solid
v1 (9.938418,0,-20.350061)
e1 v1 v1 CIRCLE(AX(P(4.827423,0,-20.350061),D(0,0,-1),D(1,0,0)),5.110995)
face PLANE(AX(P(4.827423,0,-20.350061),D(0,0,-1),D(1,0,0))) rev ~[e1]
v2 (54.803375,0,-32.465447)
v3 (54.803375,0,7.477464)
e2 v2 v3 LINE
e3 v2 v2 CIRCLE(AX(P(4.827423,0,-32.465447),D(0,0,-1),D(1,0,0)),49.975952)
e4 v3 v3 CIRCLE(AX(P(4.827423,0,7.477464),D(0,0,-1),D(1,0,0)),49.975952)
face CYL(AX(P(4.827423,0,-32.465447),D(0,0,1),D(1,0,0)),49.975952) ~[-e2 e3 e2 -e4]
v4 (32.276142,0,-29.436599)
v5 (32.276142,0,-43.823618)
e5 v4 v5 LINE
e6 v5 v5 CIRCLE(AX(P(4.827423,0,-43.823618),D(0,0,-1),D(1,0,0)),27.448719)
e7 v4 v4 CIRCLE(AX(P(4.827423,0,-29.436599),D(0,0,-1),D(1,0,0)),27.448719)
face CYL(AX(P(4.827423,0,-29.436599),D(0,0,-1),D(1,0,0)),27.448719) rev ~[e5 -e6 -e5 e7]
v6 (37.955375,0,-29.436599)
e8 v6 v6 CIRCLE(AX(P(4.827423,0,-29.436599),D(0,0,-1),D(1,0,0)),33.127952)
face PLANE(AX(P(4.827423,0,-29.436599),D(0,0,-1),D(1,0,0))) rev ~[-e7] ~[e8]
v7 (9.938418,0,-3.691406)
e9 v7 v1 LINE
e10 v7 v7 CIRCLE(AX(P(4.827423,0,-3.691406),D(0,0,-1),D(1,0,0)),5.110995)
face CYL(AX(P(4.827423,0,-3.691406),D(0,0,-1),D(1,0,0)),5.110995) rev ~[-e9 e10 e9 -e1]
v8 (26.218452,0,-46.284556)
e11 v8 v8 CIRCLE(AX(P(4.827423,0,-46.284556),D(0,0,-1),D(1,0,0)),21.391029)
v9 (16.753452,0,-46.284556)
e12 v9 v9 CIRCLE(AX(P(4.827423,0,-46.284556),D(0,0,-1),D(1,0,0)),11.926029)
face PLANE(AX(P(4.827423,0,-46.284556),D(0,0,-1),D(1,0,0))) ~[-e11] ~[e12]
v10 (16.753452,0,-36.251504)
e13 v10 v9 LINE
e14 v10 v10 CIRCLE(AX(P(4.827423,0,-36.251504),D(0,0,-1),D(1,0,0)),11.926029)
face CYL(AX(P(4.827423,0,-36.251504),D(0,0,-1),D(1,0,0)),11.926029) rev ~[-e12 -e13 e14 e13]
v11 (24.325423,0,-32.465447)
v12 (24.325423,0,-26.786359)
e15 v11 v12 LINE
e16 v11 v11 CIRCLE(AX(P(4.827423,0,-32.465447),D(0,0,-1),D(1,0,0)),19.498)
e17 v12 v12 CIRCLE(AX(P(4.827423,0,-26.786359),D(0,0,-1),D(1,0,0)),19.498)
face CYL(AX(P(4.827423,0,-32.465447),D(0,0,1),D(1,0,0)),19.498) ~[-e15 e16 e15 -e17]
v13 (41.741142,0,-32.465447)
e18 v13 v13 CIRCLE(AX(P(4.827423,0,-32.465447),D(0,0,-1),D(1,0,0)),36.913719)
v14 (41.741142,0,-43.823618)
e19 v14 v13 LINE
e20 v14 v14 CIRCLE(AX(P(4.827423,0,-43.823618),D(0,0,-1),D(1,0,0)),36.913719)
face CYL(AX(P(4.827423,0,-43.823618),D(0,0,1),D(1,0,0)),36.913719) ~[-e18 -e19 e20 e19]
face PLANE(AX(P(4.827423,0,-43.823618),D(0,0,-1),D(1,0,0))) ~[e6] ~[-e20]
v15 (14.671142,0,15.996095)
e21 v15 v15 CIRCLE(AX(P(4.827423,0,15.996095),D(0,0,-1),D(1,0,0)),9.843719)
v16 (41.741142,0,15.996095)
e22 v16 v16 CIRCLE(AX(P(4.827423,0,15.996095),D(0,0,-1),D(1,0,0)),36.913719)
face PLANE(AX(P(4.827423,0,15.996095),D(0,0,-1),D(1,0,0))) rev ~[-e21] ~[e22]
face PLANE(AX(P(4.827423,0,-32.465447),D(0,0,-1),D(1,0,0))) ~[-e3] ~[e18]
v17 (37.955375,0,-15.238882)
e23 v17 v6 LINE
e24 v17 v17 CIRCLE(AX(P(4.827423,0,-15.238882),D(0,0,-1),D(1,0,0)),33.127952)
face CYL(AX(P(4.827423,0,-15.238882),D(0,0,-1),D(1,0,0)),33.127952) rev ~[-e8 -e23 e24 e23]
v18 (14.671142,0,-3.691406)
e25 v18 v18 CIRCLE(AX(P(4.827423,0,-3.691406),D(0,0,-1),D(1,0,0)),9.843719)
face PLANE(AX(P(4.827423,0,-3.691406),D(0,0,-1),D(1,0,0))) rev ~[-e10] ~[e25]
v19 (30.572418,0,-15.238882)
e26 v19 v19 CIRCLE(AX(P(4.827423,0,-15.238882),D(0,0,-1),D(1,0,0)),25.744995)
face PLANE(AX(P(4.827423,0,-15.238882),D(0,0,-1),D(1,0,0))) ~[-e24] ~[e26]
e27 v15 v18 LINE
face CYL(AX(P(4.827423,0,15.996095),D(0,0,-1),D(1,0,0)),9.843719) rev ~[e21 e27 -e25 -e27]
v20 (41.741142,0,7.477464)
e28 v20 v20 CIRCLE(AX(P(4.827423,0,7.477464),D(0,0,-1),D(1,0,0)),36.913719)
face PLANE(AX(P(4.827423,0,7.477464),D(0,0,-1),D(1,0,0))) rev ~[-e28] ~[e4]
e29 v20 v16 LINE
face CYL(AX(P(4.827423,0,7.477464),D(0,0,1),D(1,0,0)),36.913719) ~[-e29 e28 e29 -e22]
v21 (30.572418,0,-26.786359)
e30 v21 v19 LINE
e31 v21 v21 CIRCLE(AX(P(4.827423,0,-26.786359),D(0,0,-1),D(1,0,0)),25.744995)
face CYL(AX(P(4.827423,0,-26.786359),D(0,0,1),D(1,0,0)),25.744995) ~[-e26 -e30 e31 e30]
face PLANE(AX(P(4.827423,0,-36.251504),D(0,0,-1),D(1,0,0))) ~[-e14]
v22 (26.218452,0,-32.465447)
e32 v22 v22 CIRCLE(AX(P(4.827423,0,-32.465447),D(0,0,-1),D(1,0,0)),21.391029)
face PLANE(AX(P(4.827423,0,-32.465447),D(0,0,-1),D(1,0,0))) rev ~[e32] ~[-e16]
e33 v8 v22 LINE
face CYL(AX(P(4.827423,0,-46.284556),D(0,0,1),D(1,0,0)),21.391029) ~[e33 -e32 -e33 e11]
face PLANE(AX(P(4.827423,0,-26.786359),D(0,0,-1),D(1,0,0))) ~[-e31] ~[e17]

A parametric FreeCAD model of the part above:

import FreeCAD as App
import Part
import Sketcher

doc = App.newDocument("Part")
body = doc.addObject("PartDesign::Body", "Body")

# Sketch on XZ plane
sketch1 = body.newObject("Sketcher::SketchObject", "Sketch")
sketch1.AttachmentSupport = (doc.getObject("XZ_Plane"), [""])
sketch1.MapMode = "FlatFace"
sketch1.addGeometry(Part.LineSegment(App.Vector(41.741142, 15.996095, 0), App.Vector(14.671142, 15.996095, 0)), False)
sketch1.addGeometry(Part.LineSegment(App.Vector(14.671142, 15.996095, 0), App.Vector(14.671142, -3.691406, 0)), False)
sketch1.addGeometry(Part.LineSegment(App.Vector(14.671142, -3.691406, 0), App.Vector(9.938418, -3.691406, 0)), False)
sketch1.addGeometry(Part.LineSegment(App.Vector(9.938418, -3.691406, 0), App.Vector(9.938418, -20.350061, 0)), False)
sketch1.addGeometry(Part.LineSegment(App.Vector(9.938418, -20.350061, 0), App.Vector(4.827423, -20.350061, 0)), False)
sketch1.addGeometry(Part.LineSegment(App.Vector(4.827423, -20.350061, 0), App.Vector(4.827423, -36.251504, 0)), False)
sketch1.addGeometry(Part.LineSegment(App.Vector(4.827423, -36.251504, 0), App.Vector(16.753452, -36.251504, 0)), False)
sketch1.addGeometry(Part.LineSegment(App.Vector(16.753452, -36.251504, 0), App.Vector(16.753452, -46.284556, 0)), False)
sketch1.addGeometry(Part.LineSegment(App.Vector(16.753452, -46.284556, 0), App.Vector(26.218452, -46.284556, 0)), False)
sketch1.addGeometry(Part.LineSegment(App.Vector(26.218452, -46.284556, 0), App.Vector(26.218452, -32.465447, 0)), False)
sketch1.addGeometry(Part.LineSegment(App.Vector(26.218452, -32.465447, 0), App.Vector(24.325423, -32.465447, 0)), False)
sketch1.addGeometry(Part.LineSegment(App.Vector(24.325423, -32.465447, 0), App.Vector(24.325423, -26.786359, 0)), False)
sketch1.addGeometry(Part.LineSegment(App.Vector(24.325423, -26.786359, 0), App.Vector(30.572418, -26.786359, 0)), False)
sketch1.addGeometry(Part.LineSegment(App.Vector(30.572418, -26.786359, 0), App.Vector(30.572418, -15.238882, 0)), False)
sketch1.addGeometry(Part.LineSegment(App.Vector(30.572418, -15.238882, 0), App.Vector(37.955375, -15.238882, 0)), False)
sketch1.addGeometry(Part.LineSegment(App.Vector(37.955375, -15.238882, 0), App.Vector(37.955375, -29.436599, 0)), False)
sketch1.addGeometry(Part.LineSegment(App.Vector(37.955375, -29.436599, 0), App.Vector(32.276142, -29.436599, 0)), False)
sketch1.addGeometry(Part.LineSegment(App.Vector(32.276142, -29.436599, 0), App.Vector(32.276142, -43.823618, 0)), False)
sketch1.addGeometry(Part.LineSegment(App.Vector(32.276142, -43.823618, 0), App.Vector(41.741142, -43.823618, 0)), False)
sketch1.addGeometry(Part.LineSegment(App.Vector(41.741142, -43.823618, 0), App.Vector(41.741142, -32.465447, 0)), False)
sketch1.addGeometry(Part.LineSegment(App.Vector(41.741142, -32.465447, 0), App.Vector(54.803375, -32.465447, 0)), False)
sketch1.addGeometry(Part.LineSegment(App.Vector(54.803375, -32.465447, 0), App.Vector(54.803375, 7.477464, 0)), False)
sketch1.addGeometry(Part.LineSegment(App.Vector(54.803375, 7.477464, 0), App.Vector(41.741142, 7.477464, 0)), False)
sketch1.addGeometry(Part.LineSegment(App.Vector(41.741142, 7.477464, 0), App.Vector(41.741142, 15.996095, 0)), False)
sketch1.addGeometry(Part.LineSegment(App.Vector(4.827423, 15.996095, 0), App.Vector(4.827423, -46.284556, 0)), True)  # axis
sketch1.addConstraint(Sketcher.Constraint("Coincident", 0, 2, 1, 1))
sketch1.addConstraint(Sketcher.Constraint("Coincident", 1, 2, 2, 1))
sketch1.addConstraint(Sketcher.Constraint("Coincident", 2, 2, 3, 1))
sketch1.addConstraint(Sketcher.Constraint("Coincident", 3, 2, 4, 1))
sketch1.addConstraint(Sketcher.Constraint("Coincident", 4, 2, 5, 1))
sketch1.addConstraint(Sketcher.Constraint("Coincident", 5, 2, 6, 1))
sketch1.addConstraint(Sketcher.Constraint("Coincident", 6, 2, 7, 1))
sketch1.addConstraint(Sketcher.Constraint("Coincident", 7, 2, 8, 1))
sketch1.addConstraint(Sketcher.Constraint("Coincident", 8, 2, 9, 1))
sketch1.addConstraint(Sketcher.Constraint("Coincident", 9, 2, 10, 1))
sketch1.addConstraint(Sketcher.Constraint("Coincident", 10, 2, 11, 1))
sketch1.addConstraint(Sketcher.Constraint("Coincident", 11, 2, 12, 1))
sketch1.addConstraint(Sketcher.Constraint("Coincident", 12, 2, 13, 1))
sketch1.addConstraint(Sketcher.Constraint("Coincident", 13, 2, 14, 1))
sketch1.addConstraint(Sketcher.Constraint("Coincident", 14, 2, 15, 1))
sketch1.addConstraint(Sketcher.Constraint("Coincident", 15, 2, 16, 1))
sketch1.addConstraint(Sketcher.Constraint("Coincident", 16, 2, 17, 1))
sketch1.addConstraint(Sketcher.Constraint("Coincident", 17, 2, 18, 1))
sketch1.addConstraint(Sketcher.Constraint("Coincident", 18, 2, 19, 1))
sketch1.addConstraint(Sketcher.Constraint("Coincident", 19, 2, 20, 1))
sketch1.addConstraint(Sketcher.Constraint("Coincident", 20, 2, 21, 1))
sketch1.addConstraint(Sketcher.Constraint("Coincident", 21, 2, 22, 1))
sketch1.addConstraint(Sketcher.Constraint("Coincident", 22, 2, 23, 1))
sketch1.addConstraint(Sketcher.Constraint("Coincident", 23, 2, 0, 1))
sketch1.addConstraint(Sketcher.Constraint("Horizontal", 0))
sketch1.addConstraint(Sketcher.Constraint("Vertical", 1))
sketch1.addConstraint(Sketcher.Constraint("Horizontal", 2))
sketch1.addConstraint(Sketcher.Constraint("Vertical", 3))
sketch1.addConstraint(Sketcher.Constraint("Horizontal", 4))
sketch1.addConstraint(Sketcher.Constraint("Vertical", 5))
sketch1.addConstraint(Sketcher.Constraint("Horizontal", 6))
sketch1.addConstraint(Sketcher.Constraint("Vertical", 7))
sketch1.addConstraint(Sketcher.Constraint("Horizontal", 8))
sketch1.addConstraint(Sketcher.Constraint("Vertical", 9))
sketch1.addConstraint(Sketcher.Constraint("Horizontal", 10))
sketch1.addConstraint(Sketcher.Constraint("Vertical", 11))
sketch1.addConstraint(Sketcher.Constraint("Horizontal", 12))
sketch1.addConstraint(Sketcher.Constraint("Vertical", 13))
sketch1.addConstraint(Sketcher.Constraint("Horizontal", 14))
sketch1.addConstraint(Sketcher.Constraint("Vertical", 15))
sketch1.addConstraint(Sketcher.Constraint("Horizontal", 16))
sketch1.addConstraint(Sketcher.Constraint("Vertical", 17))
sketch1.addConstraint(Sketcher.Constraint("Horizontal", 18))
sketch1.addConstraint(Sketcher.Constraint("Vertical", 19))
sketch1.addConstraint(Sketcher.Constraint("Horizontal", 20))
sketch1.addConstraint(Sketcher.Constraint("Vertical", 21))
sketch1.addConstraint(Sketcher.Constraint("Horizontal", 22))
sketch1.addConstraint(Sketcher.Constraint("Vertical", 23))
sketch1.addConstraint(Sketcher.Constraint("Vertical", 24))
sketch1.addConstraint(Sketcher.Constraint("Horizontal", 10, 2, 19, 2))
sketch1.addConstraint(Sketcher.Constraint("Horizontal", 23, 2, 24, 1))
sketch1.addConstraint(Sketcher.Constraint("Horizontal", 8, 2, 24, 2))
sketch1.addConstraint(Sketcher.Constraint("Vertical", 19, 2, 22, 2))
sketch1.addConstraint(Sketcher.Constraint("Vertical", 5, 2, 24, 1))
sketch1.addConstraint(Sketcher.Constraint("Equal", 8, 18))
sketch1.addConstraint(Sketcher.Constraint("DistanceX", 0, 2, 0, 1, 27.07))
sketch1.addConstraint(Sketcher.Constraint("DistanceX", 8, 1, 8, 2, 9.465))
sketch1.addConstraint(Sketcher.Constraint("DistanceY", 1, 2, 1, 1, 19.687501))
sketch1.addConstraint(Sketcher.Constraint("DistanceX", 15, 2, 20, 2, 16.848))
sketch1.addConstraint(Sketcher.Constraint("DistanceX", 24, 2, 10, 2, 19.498))
sketch1.addConstraint(Sketcher.Constraint("DistanceX", 6, 1, 6, 2, 11.926029))
sketch1.addConstraint(Sketcher.Constraint("DistanceY", 9, 1, 9, 2, 13.819109))
sketch1.addConstraint(Sketcher.Constraint("DistanceY", 17, 2, 17, 1, 14.387019))
sketch1.addConstraint(Sketcher.Constraint("DistanceY", 19, 1, 19, 2, 11.358171))
sketch1.addConstraint(Sketcher.Constraint("DistanceY", 21, 1, 21, 2, 39.942911))
sketch1.addConstraint(Sketcher.Constraint("DistanceY", 23, 1, 23, 2, 8.518631))
sketch1.addConstraint(Sketcher.Constraint("DistanceY", 15, 2, -1, 1, 29.436599))
sketch1.addConstraint(Sketcher.Constraint("DistanceY", 5, 2, 0, 2, 52.247599))
sketch1.addConstraint(Sketcher.Constraint("DistanceY", 11, 2, 3, 2, 6.436298))
sketch1.addConstraint(Sketcher.Constraint("DistanceX", 2, 2, 2, 1, 4.732724))
sketch1.addConstraint(Sketcher.Constraint("DistanceX", 4, 2, 4, 1, 5.110995))
sketch1.addConstraint(Sketcher.Constraint("DistanceX", 12, 1, 12, 2, 6.246995))
sketch1.addConstraint(Sketcher.Constraint("DistanceX", 14, 1, 14, 2, 7.382957))
sketch1.addConstraint(Sketcher.Constraint("DistanceY", 3, 2, 3, 1, 16.658655))
sketch1.addConstraint(Sketcher.Constraint("DistanceY", 13, 1, 13, 2, 11.547477))
sketch1.addConstraint(Sketcher.Constraint("DistanceX", -1, 1, 6, 2, 16.753452))
revolution = body.newObject("PartDesign::Revolution", "Revolution")
revolution.Profile = sketch1
revolution.ReferenceAxis = (sketch1, ["Axis0"])
revolution.Angle = 360

doc.recompute()
